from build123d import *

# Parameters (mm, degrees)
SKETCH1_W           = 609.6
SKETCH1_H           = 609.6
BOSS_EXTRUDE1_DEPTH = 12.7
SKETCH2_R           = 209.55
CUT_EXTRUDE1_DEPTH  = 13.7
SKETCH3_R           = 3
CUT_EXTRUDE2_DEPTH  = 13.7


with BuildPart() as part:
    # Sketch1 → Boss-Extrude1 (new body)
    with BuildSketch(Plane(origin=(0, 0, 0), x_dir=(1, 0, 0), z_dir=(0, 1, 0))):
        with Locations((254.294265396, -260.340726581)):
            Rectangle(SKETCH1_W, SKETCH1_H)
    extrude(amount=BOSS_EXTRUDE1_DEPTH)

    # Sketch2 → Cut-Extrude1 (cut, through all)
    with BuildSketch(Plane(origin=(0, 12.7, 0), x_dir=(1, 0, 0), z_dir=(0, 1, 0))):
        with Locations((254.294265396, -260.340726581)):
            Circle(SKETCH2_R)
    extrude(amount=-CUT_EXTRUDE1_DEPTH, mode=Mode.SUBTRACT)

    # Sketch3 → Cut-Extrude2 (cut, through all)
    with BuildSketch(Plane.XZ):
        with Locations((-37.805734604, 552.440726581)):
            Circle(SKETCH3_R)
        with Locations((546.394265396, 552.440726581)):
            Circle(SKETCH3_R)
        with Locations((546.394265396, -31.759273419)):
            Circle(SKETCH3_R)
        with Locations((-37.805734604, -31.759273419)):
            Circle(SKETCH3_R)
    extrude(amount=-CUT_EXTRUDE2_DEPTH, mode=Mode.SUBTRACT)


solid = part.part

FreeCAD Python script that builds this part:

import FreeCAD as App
import Part
import Sketcher
from FreeCAD import Vector
Q = App.Units.Quantity

doc = App.newDocument("Part")
body = doc.addObject("PartDesign::Body", "Body")

# Sketch on XZ plane
sketch1 = doc.addObject("Sketcher::SketchObject", "Sketch")
body.addObject(sketch1)
sketch1.AttachmentSupport = (doc.XZ_Plane, [""])
sketch1.MapMode = "FlatFace"
sketch1.addGeometry(Part.LineSegment(Vector(-51, -44, 0), Vector(-51, 565, 0)), False)
sketch1.addGeometry(Part.LineSegment(Vector(-51, 565, 0), Vector(559, 565, 0)), False)
sketch1.addGeometry(Part.LineSegment(Vector(559, 565, 0), Vector(559, -44, 0)), False)
sketch1.addGeometry(Part.LineSegment(Vector(559, -44, 0), Vector(-51, -44, 0)), False)
sketch1.addConstraint(Sketcher.Constraint("Coincident", 0, 2, 1, 1))
sketch1.addConstraint(Sketcher.Constraint("Coincident", 1, 2, 2, 1))
sketch1.addConstraint(Sketcher.Constraint("Coincident", 2, 2, 3, 1))
sketch1.addConstraint(Sketcher.Constraint("Coincident", 3, 2, 0, 1))
sketch1.addConstraint(Sketcher.Constraint("Vertical", 0))
sketch1.addConstraint(Sketcher.Constraint("Horizontal", 1))
sketch1.addConstraint(Sketcher.Constraint("Vertical", 2))
sketch1.addConstraint(Sketcher.Constraint("Horizontal", 3))
sketch1.addConstraint(Sketcher.Constraint("Equal", 3, 0))
sketch1.addConstraint(Sketcher.Constraint("DistanceX", 1, 1, 1, 2, Q("24 in")))
sketch1.addConstraint(Sketcher.Constraint("DistanceX", 0, 2, -1, 1, Q("50.505735 mm")))
sketch1.addConstraint(Sketcher.Constraint("DistanceY", -1, 1, 0, 2, Q("565.140727 mm")))
pad1 = doc.addObject("PartDesign::Pad", "Pad")
body.addObject(pad1)
pad1.Profile = sketch1
pad1.Length = Q("0.5 in")
pad1.Reversed = True

# Sketch on XZ plane
sketch2 = doc.addObject("Sketcher::SketchObject", "Sketch001")
body.addObject(sketch2)
sketch2.AttachmentSupport = (doc.XZ_Plane, [""])
sketch2.MapMode = "FlatFace"
sketch2.AttachmentOffset = App.Placement(Vector(0, 0, -0.5 * 25.4), App.Rotation())
sketch2.addGeometry(Part.Circle(Vector(254, 260, 0), Vector(0, 0, 1), 210), False)
sketch2.addConstraint(Sketcher.Constraint("Diameter", 0, Q("16.5 in")))
sketch2.addConstraint(Sketcher.Constraint("DistanceX", -1, 1, 0, 3, Q("254.294265 mm")))
sketch2.addConstraint(Sketcher.Constraint("DistanceY", -1, 1, 0, 3, Q("260.340727 mm")))
pocket1 = doc.addObject("PartDesign::Pocket", "Pocket")
body.addObject(pocket1)
pocket1.Profile = sketch2
pocket1.Type = "ThroughAll"
pocket1.Reversed = True

# Sketch on XZ plane
sketch3 = doc.addObject("Sketcher::SketchObject", "Sketch002")
body.addObject(sketch3)
sketch3.AttachmentSupport = (doc.XZ_Plane, [""])
sketch3.MapMode = "FlatFace"
sketch3.addGeometry(Part.Circle(Vector(-37.8, 552.4, 0), Vector(0, 0, 1), 3), False)
sketch3.addGeometry(Part.Circle(Vector(546.4, 552.4, 0), Vector(0, 0, 1), 3), False)
sketch3.addGeometry(Part.Circle(Vector(546.4, -31.8, 0), Vector(0, 0, 1), 3), False)
sketch3.addGeometry(Part.Circle(Vector(-37.8, -31.8, 0), Vector(0, 0, 1), 3), False)
sketch3.addConstraint(Sketcher.Constraint("Equal", 0, 1))
sketch3.addConstraint(Sketcher.Constraint("Equal", 1, 2))
sketch3.addConstraint(Sketcher.Constraint("Equal", 2, 3))
sketch3.addConstraint(Sketcher.Constraint("Horizontal", 0, 3, 1, 3))
sketch3.addConstraint(Sketcher.Constraint("Horizontal", 2, 3, 3, 3))
sketch3.addConstraint(Sketcher.Constraint("Vertical", 1, 3, 2, 3))
sketch3.addConstraint(Sketcher.Constraint("Vertical", 0, 3, 3, 3))
sketch3.addConstraint(Sketcher.Constraint("DistanceX", 0, 3, 1, 3, Q("23 in")))
sketch3.addConstraint(Sketcher.Constraint("DistanceY", 2, 3, 1, 3, Q("23 in")))
sketch3.addConstraint(Sketcher.Constraint("Diameter", 0, Q("6 mm")))
sketch3.addConstraint(Sketcher.Constraint("DistanceX", 0, 3, -1, 1, Q("37.805735 mm")))
sketch3.addConstraint(Sketcher.Constraint("DistanceY", -1, 1, 0, 3, Q("552.440727 mm")))
pocket2 = doc.addObject("PartDesign::Pocket", "Pocket001")
body.addObject(pocket2)
pocket2.Profile = sketch3
pocket2.Type = "ThroughAll"

doc.recompute()
